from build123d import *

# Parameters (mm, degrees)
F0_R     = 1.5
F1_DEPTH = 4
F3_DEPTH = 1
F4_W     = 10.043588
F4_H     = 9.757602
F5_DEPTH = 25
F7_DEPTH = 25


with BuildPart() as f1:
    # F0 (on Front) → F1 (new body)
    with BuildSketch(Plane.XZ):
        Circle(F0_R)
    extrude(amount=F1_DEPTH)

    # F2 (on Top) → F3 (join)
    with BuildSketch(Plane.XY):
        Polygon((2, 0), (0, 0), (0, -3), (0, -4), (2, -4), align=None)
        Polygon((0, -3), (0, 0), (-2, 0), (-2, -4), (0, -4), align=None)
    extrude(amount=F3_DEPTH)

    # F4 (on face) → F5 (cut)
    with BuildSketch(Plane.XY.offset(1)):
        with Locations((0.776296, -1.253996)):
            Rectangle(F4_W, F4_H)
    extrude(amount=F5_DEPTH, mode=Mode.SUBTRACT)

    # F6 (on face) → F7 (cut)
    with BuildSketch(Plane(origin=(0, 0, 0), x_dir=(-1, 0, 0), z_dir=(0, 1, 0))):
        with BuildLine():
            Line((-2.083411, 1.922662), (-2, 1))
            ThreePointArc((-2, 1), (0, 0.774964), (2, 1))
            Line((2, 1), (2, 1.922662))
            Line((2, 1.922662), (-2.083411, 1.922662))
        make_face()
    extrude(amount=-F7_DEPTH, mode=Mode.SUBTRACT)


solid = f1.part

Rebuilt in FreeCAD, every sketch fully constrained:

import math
import FreeCAD as App
import Part
import Sketcher


def add_polygon(sketch, points):
    """Adds a closed chain of lines whose ends are joined by coincident constraints."""
    first, n = sketch.GeometryCount, len(points)
    for a, b in zip(points, points[1:] + points[:1]):
        sketch.addGeometry(Part.LineSegment(App.Vector(*a, 0), App.Vector(*b, 0)), False)
    for i in range(n):
        sketch.addConstraint(Sketcher.Constraint("Coincident", first + i, 2, first + (i + 1) % n, 1))

doc = App.newDocument("Part")
body = doc.addObject("PartDesign::Body", "Body")

# Sketch on XZ plane
sketch1 = doc.addObject("Sketcher::SketchObject", "Sketch")
body.addObject(sketch1)
sketch1.AttachmentSupport = (doc.XZ_Plane, [""])
sketch1.MapMode = "FlatFace"
sketch1.addGeometry(Part.Circle(App.Vector(0, 0, 0), App.Vector(0, 0, 1), 1.5), False)
sketch1.addConstraint(Sketcher.Constraint("Coincident", 0, 3, -1, 1))
sketch1.addConstraint(Sketcher.Constraint("Diameter", 0, 3.0))
pad1 = doc.addObject("PartDesign::Pad", "Pad")
body.addObject(pad1)
pad1.Profile = sketch1
pad1.Length = 4

# Sketch on XY plane
sketch2 = doc.addObject("Sketcher::SketchObject", "Sketch001")
body.addObject(sketch2)
sketch2.AttachmentSupport = (doc.XY_Plane, [""])
sketch2.MapMode = "FlatFace"
add_polygon(sketch2, [(2, 0), (-2, 0), (-2, -4), (2, -4)])  # lines 0-3
sketch2.addConstraint(Sketcher.Constraint("Horizontal", 0))
sketch2.addConstraint(Sketcher.Constraint("Vertical", 1))
sketch2.addConstraint(Sketcher.Constraint("Horizontal", 2))
sketch2.addConstraint(Sketcher.Constraint("Vertical", 3))
sketch2.addConstraint(Sketcher.Constraint("Symmetric", 0, 2, 3, 2, -1, 1))
sketch2.addConstraint(Sketcher.Constraint("Equal", 2, 1))
sketch2.addConstraint(Sketcher.Constraint("DistanceX", 0, 2, 0, 1, 4.0))
pad2 = doc.addObject("PartDesign::Pad", "Pad001")
body.addObject(pad2)
pad2.Profile = sketch2
pad2.Length = 1

# Sketch on XY plane
sketch3 = doc.addObject("Sketcher::SketchObject", "Sketch002")
body.addObject(sketch3)
sketch3.AttachmentSupport = (doc.XY_Plane, [""])
sketch3.MapMode = "FlatFace"
sketch3.AttachmentOffset = App.Placement(App.Vector(0, 0, 1), App.Rotation())
add_polygon(sketch3, [(-4, 4), (-4, -6), (6, -6), (6, 4)])  # lines 0-3
sketch3.addConstraint(Sketcher.Constraint("Vertical", 0))
sketch3.addConstraint(Sketcher.Constraint("Horizontal", 1))
sketch3.addConstraint(Sketcher.Constraint("Vertical", 2))
sketch3.addConstraint(Sketcher.Constraint("Horizontal", 3))
sketch3.addConstraint(Sketcher.Constraint("DistanceX", 0, 2, -1, 1, 4.245498))
sketch3.addConstraint(Sketcher.Constraint("DistanceX", 1, 1, 1, 2, 10.043588))
sketch3.addConstraint(Sketcher.Constraint("DistanceY", 0, 2, 0, 1, 9.757602))
sketch3.addConstraint(Sketcher.Constraint("DistanceY", 0, 2, -1, 1, 6.132797))
pocket1 = doc.addObject("PartDesign::Pocket", "Pocket")
body.addObject(pocket1)
pocket1.Profile = sketch3
pocket1.Length = 25
pocket1.Reversed = True

# Sketch on XZ plane
sketch4 = doc.addObject("Sketcher::SketchObject", "Sketch003")
body.addObject(sketch4)
sketch4.AttachmentSupport = (doc.XZ_Plane, [""])
sketch4.MapMode = "FlatFace"
sketch4.addGeometry(Part.LineSegment(App.Vector(2.1, 1.9, 0), App.Vector(2, 1, 0)), False)
sketch4.addGeometry(Part.ArcOfCircle(Part.Circle(App.Vector(0, 9.8, 0), App.Vector(0, 0, 1), 9), math.radians(-103), math.radians(-77)), False)
sketch4.addGeometry(Part.LineSegment(App.Vector(-2, 1, 0), App.Vector(-2, 1.9, 0)), False)
sketch4.addGeometry(Part.LineSegment(App.Vector(-2, 1.9, 0), App.Vector(2.1, 1.9, 0)), False)
sketch4.addConstraint(Sketcher.Constraint("Coincident", 0, 2, 1, 2))
sketch4.addConstraint(Sketcher.Constraint("Coincident", 1, 1, 2, 1))
sketch4.addConstraint(Sketcher.Constraint("Coincident", 2, 2, 3, 1))
sketch4.addConstraint(Sketcher.Constraint("Coincident", 3, 2, 0, 1))
sketch4.addConstraint(Sketcher.Constraint("Vertical", 2))
sketch4.addConstraint(Sketcher.Constraint("Horizontal", 3))
sketch4.addConstraint(Sketcher.Constraint("Symmetric", 0, 2, 1, 1, -2))
sketch4.addConstraint(Sketcher.Constraint("DistanceX", -1, 1, 0, 2, 2.0))
sketch4.addConstraint(Sketcher.Constraint("DistanceY", -1, 1, 0, 2, 1.0))
sketch4.addConstraint(Sketcher.Constraint("Radius", 1, 8.999985))
sketch4.addConstraint(Sketcher.Constraint("DistanceX", 3, 1, 3, 2, 4.083411))
sketch4.addConstraint(Sketcher.Constraint("DistanceY", 2, 1, 2, 2, 0.922662))
pocket2 = doc.addObject("PartDesign::Pocket", "Pocket001")
body.addObject(pocket2)
pocket2.Profile = sketch4
pocket2.Length = 25
pocket2.Reversed = True

doc.recompute()
